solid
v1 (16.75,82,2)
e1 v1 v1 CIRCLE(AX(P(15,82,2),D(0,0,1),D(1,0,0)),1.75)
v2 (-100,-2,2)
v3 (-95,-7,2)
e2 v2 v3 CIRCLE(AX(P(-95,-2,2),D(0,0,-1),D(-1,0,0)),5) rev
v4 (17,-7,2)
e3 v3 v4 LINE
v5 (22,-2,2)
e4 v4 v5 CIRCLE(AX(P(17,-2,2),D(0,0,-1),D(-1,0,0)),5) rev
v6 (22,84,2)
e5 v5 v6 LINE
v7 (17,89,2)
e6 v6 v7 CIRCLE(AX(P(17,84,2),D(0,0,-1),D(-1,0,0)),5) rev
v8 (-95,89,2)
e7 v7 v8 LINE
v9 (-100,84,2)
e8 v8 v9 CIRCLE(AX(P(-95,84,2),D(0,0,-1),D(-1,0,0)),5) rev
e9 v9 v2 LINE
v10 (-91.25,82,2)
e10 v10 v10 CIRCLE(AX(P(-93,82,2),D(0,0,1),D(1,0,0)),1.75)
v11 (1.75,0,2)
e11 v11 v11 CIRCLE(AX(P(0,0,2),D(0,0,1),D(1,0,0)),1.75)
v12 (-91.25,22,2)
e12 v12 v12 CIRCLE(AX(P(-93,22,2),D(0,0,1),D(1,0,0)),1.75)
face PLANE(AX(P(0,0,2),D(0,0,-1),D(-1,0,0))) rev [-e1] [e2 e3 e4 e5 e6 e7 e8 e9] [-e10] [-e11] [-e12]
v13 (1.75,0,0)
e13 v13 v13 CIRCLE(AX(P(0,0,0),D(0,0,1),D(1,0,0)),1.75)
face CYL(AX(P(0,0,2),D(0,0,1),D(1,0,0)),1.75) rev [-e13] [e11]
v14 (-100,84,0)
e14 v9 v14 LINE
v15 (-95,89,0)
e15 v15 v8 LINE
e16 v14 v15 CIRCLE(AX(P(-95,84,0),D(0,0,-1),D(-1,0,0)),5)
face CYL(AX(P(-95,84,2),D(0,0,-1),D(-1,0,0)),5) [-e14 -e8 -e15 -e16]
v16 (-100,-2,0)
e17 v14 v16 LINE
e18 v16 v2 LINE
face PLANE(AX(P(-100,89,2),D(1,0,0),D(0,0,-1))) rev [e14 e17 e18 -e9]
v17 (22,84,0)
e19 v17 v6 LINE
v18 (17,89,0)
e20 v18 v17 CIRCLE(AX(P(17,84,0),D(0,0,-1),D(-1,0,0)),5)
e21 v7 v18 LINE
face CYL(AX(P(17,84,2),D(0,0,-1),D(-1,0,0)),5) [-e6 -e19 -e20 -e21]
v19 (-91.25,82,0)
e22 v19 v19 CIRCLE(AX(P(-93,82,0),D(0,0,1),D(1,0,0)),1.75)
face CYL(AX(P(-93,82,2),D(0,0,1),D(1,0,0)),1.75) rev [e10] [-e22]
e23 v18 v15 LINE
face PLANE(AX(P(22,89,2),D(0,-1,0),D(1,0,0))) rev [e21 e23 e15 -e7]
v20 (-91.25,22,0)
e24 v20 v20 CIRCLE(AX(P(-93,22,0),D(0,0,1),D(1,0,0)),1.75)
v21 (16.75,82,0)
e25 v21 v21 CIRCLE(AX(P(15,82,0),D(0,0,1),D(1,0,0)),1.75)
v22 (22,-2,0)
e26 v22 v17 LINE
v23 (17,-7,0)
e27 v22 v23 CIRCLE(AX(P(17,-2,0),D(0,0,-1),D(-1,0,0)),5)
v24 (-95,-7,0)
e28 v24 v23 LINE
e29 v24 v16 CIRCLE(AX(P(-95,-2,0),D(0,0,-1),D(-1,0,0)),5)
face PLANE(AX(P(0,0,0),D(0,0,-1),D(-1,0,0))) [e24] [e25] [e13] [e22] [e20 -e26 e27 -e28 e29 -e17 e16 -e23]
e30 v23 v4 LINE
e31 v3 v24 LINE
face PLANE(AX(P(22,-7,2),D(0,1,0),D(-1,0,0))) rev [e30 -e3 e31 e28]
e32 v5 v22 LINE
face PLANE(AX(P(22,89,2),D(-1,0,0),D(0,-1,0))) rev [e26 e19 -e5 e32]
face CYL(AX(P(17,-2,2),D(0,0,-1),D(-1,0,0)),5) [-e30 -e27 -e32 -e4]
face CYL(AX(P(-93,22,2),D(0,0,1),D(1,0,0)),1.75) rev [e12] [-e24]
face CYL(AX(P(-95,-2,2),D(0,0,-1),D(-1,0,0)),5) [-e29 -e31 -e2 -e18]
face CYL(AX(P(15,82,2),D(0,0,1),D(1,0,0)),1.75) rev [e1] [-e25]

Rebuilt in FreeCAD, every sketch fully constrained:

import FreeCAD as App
import Part
import Sketcher
from FreeCAD import Vector


def edges_at(feature, points):
    """Names of the edges that pass closest to the given points."""
    edges = feature.Shape.Edges
    near = lambda p: min(range(len(edges)), key=lambda i: edges[i].distToShape(Part.Vertex(*p))[0])
    return sorted({f"Edge{near(p) + 1}" for p in points})


def add_polygon(sketch, points):
    """Adds a closed chain of lines whose ends are joined by coincident constraints."""
    first, n = sketch.GeometryCount, len(points)
    for a, b in zip(points, points[1:] + points[:1]):
        sketch.addGeometry(Part.LineSegment(App.Vector(*a, 0), App.Vector(*b, 0)), False)
    for i in range(n):
        sketch.addConstraint(Sketcher.Constraint("Coincident", first + i, 2, first + (i + 1) % n, 1))

doc = App.newDocument("Part")
body = doc.addObject("PartDesign::Body", "Body")

sketch1 = body.newObject("Sketcher::SketchObject", "Sketch")
sketch1.AttachmentSupport = (doc.getObject("XY_Plane"), [""])
sketch1.MapMode = "FlatFace"
add_polygon(sketch1, [(-100, 89), (-100, -7), (22, -7), (22, 89)])
sketch1.addConstraint(Sketcher.Constraint("Vertical", 0))
sketch1.addConstraint(Sketcher.Constraint("Horizontal", 1))
sketch1.addConstraint(Sketcher.Constraint("Vertical", 2))
sketch1.addConstraint(Sketcher.Constraint("Horizontal", 3))
sketch1.addConstraint(Sketcher.Constraint("DistanceX", 1, 1, 1, 2, 122.0))
sketch1.addConstraint(Sketcher.Constraint("DistanceY", 0, 2, 0, 1, 96.0))
sketch1.addConstraint(Sketcher.Constraint("DistanceX", 0, 2, -1, 1, 100.0))
sketch1.addConstraint(Sketcher.Constraint("DistanceY", 0, 2, -1, 1, 7.0))
pad1 = body.newObject("PartDesign::Pad", "Pad")
pad1.Profile = sketch1
pad1.Length = 2

sketch2 = body.newObject("Sketcher::SketchObject", "Sketch001")
sketch2.AttachmentSupport = (doc.getObject("XY_Plane"), [""])
sketch2.MapMode = "FlatFace"
sketch2.AttachmentOffset = App.Placement(Vector(0, 0, 2), App.Rotation())
sketch2.addGeometry(Part.Circle(Vector(0, 0, 0), Vector(0, 0, 1), 1.8), False)
sketch2.addGeometry(Part.Circle(Vector(15, 82, 0), Vector(0, 0, 1), 1.8), False)
sketch2.addGeometry(Part.Circle(Vector(-93, 82, 0), Vector(0, 0, 1), 1.8), False)
sketch2.addGeometry(Part.Circle(Vector(-93, 22, 0), Vector(0, 0, 1), 1.8), False)
sketch2.addConstraint(Sketcher.Constraint("Coincident", 0, 3, -1, 1))
sketch2.addConstraint(Sketcher.Constraint("Equal", 0, 1))
sketch2.addConstraint(Sketcher.Constraint("Equal", 1, 2))
sketch2.addConstraint(Sketcher.Constraint("Equal", 2, 3))
sketch2.addConstraint(Sketcher.Constraint("Horizontal", 1, 3, 2, 3))
sketch2.addConstraint(Sketcher.Constraint("Vertical", 2, 3, 3, 3))
sketch2.addConstraint(Sketcher.Constraint("Diameter", 0, 3.5))
sketch2.addConstraint(Sketcher.Constraint("DistanceX", -1, 1, 1, 3, 15.0))
sketch2.addConstraint(Sketcher.Constraint("DistanceY", -1, 1, 1, 3, 82.0))
sketch2.addConstraint(Sketcher.Constraint("DistanceX", 2, 3, -1, 1, 93.0))
sketch2.addConstraint(Sketcher.Constraint("DistanceY", -1, 1, 3, 3, 22.0))
doc.recompute()
hole = body.newObject("PartDesign::Hole", "Hole")
hole.Profile = sketch2
hole.ThreadType = "None"
hole.Diameter = 3.5
hole.DepthType = "ThroughAll"
doc.recompute()

fillet = body.newObject("PartDesign::Fillet", "Fillet")
fillet.Base = (hole, edges_at(hole, [
    (-100, 89, 1),
    (22, 89, 1),
    (22, -7, 1),
    (-100, -7, 1),
]))
fillet.Radius = 5

doc.recompute()
